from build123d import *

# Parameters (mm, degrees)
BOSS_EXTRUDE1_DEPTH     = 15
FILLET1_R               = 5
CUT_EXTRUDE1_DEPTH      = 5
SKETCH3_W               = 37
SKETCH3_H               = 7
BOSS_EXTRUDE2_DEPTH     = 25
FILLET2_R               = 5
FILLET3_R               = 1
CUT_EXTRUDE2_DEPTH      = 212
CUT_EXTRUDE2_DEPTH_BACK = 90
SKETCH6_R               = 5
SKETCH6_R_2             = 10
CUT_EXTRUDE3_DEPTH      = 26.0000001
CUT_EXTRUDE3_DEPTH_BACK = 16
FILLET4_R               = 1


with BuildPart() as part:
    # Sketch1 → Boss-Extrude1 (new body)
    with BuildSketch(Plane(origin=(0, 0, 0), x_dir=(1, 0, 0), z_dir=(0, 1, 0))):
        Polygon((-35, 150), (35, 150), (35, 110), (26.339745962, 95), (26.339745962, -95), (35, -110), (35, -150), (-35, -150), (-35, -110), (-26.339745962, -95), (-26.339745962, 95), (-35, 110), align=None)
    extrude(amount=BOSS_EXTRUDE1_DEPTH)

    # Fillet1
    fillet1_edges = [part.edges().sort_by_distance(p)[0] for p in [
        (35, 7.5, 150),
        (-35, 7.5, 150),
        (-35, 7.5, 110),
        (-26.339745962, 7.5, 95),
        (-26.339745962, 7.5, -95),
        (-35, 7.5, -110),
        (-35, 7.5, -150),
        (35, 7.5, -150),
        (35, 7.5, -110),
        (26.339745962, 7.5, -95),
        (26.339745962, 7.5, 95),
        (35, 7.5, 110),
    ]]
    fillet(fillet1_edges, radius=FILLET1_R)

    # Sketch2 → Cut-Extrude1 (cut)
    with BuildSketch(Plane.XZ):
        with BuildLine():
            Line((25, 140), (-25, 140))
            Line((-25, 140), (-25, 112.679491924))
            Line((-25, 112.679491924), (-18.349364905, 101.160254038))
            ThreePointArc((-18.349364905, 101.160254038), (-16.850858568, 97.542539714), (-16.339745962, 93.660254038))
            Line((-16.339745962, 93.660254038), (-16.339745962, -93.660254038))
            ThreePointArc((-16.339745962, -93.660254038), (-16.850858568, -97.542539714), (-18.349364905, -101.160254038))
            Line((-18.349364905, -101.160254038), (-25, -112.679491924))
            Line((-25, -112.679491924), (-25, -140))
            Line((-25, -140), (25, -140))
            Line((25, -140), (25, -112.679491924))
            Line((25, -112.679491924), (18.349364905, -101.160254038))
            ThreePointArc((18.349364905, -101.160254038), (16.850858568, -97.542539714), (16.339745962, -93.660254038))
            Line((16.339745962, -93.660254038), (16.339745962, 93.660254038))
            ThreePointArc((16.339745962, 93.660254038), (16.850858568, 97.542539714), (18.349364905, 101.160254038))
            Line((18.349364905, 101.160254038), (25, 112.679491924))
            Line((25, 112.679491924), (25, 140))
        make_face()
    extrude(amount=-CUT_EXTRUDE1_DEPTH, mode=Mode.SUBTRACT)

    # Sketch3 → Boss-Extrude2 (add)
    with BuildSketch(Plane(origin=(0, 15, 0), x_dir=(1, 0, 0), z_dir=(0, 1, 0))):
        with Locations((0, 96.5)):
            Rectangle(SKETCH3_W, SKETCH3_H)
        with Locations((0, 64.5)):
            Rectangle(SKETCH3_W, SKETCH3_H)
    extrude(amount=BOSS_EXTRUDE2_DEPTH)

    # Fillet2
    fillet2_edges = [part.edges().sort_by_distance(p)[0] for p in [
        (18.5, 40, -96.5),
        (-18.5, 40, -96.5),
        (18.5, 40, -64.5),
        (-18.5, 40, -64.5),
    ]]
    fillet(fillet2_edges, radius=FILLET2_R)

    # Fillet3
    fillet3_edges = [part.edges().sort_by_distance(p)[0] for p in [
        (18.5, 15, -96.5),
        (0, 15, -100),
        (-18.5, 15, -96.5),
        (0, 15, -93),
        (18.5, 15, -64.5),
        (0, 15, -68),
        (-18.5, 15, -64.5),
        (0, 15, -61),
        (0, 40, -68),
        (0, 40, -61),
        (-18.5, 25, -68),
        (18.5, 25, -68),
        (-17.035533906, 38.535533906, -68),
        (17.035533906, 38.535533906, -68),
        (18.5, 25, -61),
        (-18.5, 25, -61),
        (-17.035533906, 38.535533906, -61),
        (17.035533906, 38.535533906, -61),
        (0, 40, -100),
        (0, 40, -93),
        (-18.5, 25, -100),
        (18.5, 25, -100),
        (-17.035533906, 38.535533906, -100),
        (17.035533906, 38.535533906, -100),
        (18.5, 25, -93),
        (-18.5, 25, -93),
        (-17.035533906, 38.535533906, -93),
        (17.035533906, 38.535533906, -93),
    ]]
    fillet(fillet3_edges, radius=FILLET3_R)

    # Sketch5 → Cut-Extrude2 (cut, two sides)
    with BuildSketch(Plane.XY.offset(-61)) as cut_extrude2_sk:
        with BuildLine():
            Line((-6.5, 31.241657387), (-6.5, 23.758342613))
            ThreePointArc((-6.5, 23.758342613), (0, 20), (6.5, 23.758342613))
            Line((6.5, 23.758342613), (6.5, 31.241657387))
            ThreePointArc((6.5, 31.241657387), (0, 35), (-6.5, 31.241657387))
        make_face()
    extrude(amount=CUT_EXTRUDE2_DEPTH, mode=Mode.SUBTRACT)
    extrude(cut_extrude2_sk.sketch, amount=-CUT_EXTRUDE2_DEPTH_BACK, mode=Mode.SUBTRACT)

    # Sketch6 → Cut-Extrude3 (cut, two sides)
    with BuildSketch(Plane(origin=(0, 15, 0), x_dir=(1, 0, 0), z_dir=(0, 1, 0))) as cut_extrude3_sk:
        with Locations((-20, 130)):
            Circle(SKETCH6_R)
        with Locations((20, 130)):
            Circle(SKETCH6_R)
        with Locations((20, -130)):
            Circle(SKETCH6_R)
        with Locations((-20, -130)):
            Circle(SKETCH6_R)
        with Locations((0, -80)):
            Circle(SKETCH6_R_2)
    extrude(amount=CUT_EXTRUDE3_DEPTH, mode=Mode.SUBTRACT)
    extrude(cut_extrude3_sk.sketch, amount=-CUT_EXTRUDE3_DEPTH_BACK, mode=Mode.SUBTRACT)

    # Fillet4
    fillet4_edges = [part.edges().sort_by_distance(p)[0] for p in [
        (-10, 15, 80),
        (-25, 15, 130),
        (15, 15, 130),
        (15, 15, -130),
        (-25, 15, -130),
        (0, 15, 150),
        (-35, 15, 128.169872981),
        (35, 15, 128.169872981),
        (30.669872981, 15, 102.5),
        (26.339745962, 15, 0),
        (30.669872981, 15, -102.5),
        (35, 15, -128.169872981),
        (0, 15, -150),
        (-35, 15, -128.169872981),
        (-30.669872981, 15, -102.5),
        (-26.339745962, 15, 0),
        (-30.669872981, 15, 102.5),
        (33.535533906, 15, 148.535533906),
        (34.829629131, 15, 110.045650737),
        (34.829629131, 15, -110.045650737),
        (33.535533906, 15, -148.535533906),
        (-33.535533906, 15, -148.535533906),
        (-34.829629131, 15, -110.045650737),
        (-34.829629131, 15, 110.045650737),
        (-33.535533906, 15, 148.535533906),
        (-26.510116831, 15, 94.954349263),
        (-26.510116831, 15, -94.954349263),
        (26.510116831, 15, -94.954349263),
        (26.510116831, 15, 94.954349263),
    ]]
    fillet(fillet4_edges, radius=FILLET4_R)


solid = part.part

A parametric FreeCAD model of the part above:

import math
import FreeCAD as App
import Part
import Sketcher

V = App.Vector
Q = App.Units.Quantity


def edges_at(feature, points):
    """Names of the edges that pass closest to the given points."""
    edges = feature.Shape.Edges
    near = lambda p: min(range(len(edges)), key=lambda i: edges[i].distToShape(Part.Vertex(*p))[0])
    return sorted({f"Edge{near(p) + 1}" for p in points})


def add_polygon(sketch, points):
    """Adds a closed chain of lines whose ends are joined by coincident constraints."""
    first, n = sketch.GeometryCount, len(points)
    for a, b in zip(points, points[1:] + points[:1]):
        sketch.addGeometry(Part.LineSegment(App.Vector(*a, 0), App.Vector(*b, 0)), False)
    for i in range(n):
        sketch.addConstraint(Sketcher.Constraint("Coincident", first + i, 2, first + (i + 1) % n, 1))

doc = App.newDocument("Part")
body = doc.addObject("PartDesign::Body", "Body")

# Sketch on XZ plane
sketch1 = doc.addObject("Sketcher::SketchObject", "Sketch")
body.addObject(sketch1)
sketch1.AttachmentSupport = (doc.XZ_Plane, [""])
sketch1.MapMode = "FlatFace"
add_polygon(sketch1, [(35, -150), (-35, -150), (-35, -110), (-26, -95), (-26, 95), (-35, 110), (-35, 150), (35, 150), (35, 110), (26, 95), (26, -95), (35, -110)])  # lines 0-11
sketch1.addConstraint([
    Sketcher.Constraint("Horizontal", 0),
    Sketcher.Constraint("Vertical", 1),
    Sketcher.Constraint("Vertical", 3),
    Sketcher.Constraint("Vertical", 5),
    Sketcher.Constraint("Horizontal", 6),
    Sketcher.Constraint("Vertical", 7),
    Sketcher.Constraint("Vertical", 9),
    Sketcher.Constraint("Vertical", 11),
    Sketcher.Constraint("Symmetric", 0, 2, 6, 2, -1, 1),
    Sketcher.Constraint("Symmetric", 2, 2, 8, 2, -1, 1),
    Sketcher.Constraint("Symmetric", 4, 2, 10, 2, -1, 1),
    Sketcher.Constraint("Symmetric", 4, 2, 7, 2, -2),
    Sketcher.Constraint("Parallel", 2, 8),
    Sketcher.Constraint("Parallel", 4, 10),
    Sketcher.Constraint("Horizontal", 3, 2, 8, 2),
    Sketcher.Constraint("DistanceX", 0, 2, 0, 1, 70.0),
    Sketcher.Constraint("DistanceY", 1, 1, 1, 2, 40.0),
    Sketcher.Constraint("DistanceY", 3, 1, 3, 2, 190.0),
    Sketcher.Constraint("Angle", 2, Q("60 deg")),
    Sketcher.Constraint("DistanceY", 0, 2, -1, 1, 150.0),
])
pad1 = doc.addObject("PartDesign::Pad", "Pad")
body.addObject(pad1)
pad1.Profile = sketch1
pad1.Length = 15
pad1.Reversed = True
doc.recompute()

fillet = doc.addObject("PartDesign::Fillet", "Fillet")
body.addObject(fillet)
fillet.Base = (pad1, edges_at(pad1, [
    (35, 7.5, 150),
    (-35, 7.5, 150),
    (-35, 7.5, 110),
    (-26.34, 7.5, 95),
    (-26.34, 7.5, -95),
    (-35, 7.5, -110),
    (-35, 7.5, -150),
    (35, 7.5, -150),
    (35, 7.5, -110),
    (26.34, 7.5, -95),
    (26.34, 7.5, 95),
    (35, 7.5, 110),
]))
fillet.Radius = 5

# Sketch on XZ plane
sketch2 = doc.addObject("Sketcher::SketchObject", "Sketch001")
body.addObject(sketch2)
sketch2.AttachmentSupport = (doc.XZ_Plane, [""])
sketch2.MapMode = "FlatFace"
sketch2.addGeometry([
    Part.LineSegment(V(25, 140, 0), V(-25, 140, 0)),  # 0
    Part.LineSegment(V(-25, 140, 0), V(-25, 113, 0)),  # 1
    Part.LineSegment(V(-25, 113, 0), V(-18, 101, 0)),  # 2
    Part.ArcOfCircle(Part.Circle(V(-31, 94, 0), V(0, 0, 1), 15), math.radians(0), math.radians(30)),  # 3
    Part.LineSegment(V(-16, 94, 0), V(-16, -94, 0)),  # 4
    Part.ArcOfCircle(Part.Circle(V(-31, -94, 0), V(0, 0, 1), 15), math.radians(-30), math.radians(0)),  # 5
    Part.LineSegment(V(-18, -101, 0), V(-25, -113, 0)),  # 6
    Part.LineSegment(V(-25, -113, 0), V(-25, -140, 0)),  # 7
    Part.LineSegment(V(-25, -140, 0), V(25, -140, 0)),  # 8
    Part.LineSegment(V(25, -140, 0), V(25, -113, 0)),  # 9
    Part.LineSegment(V(25, -113, 0), V(18, -101, 0)),  # 10
    Part.ArcOfCircle(Part.Circle(V(31, -94, 0), V(0, 0, 1), 15), math.radians(-180), math.radians(-150)),  # 11
    Part.LineSegment(V(16, -94, 0), V(16, 94, 0)),  # 12
    Part.ArcOfCircle(Part.Circle(V(31, 94, 0), V(0, 0, 1), 15), math.radians(150), math.radians(180)),  # 13
    Part.LineSegment(V(18, 101, 0), V(25, 113, 0)),  # 14
    Part.LineSegment(V(25, 113, 0), V(25, 140, 0)),  # 15
], False)
sketch2.addConstraint([
    Sketcher.Constraint("Coincident", 0, 2, 1, 1),
    Sketcher.Constraint("Coincident", 1, 2, 2, 1),
    Sketcher.Constraint("Tangent", 2, 2, 3, 2),
    Sketcher.Constraint("Tangent", 3, 1, 4, 1),
    Sketcher.Constraint("Tangent", 4, 2, 5, 2),
    Sketcher.Constraint("Tangent", 5, 1, 6, 1),
    Sketcher.Constraint("Coincident", 6, 2, 7, 1),
    Sketcher.Constraint("Coincident", 7, 2, 8, 1),
    Sketcher.Constraint("Coincident", 8, 2, 9, 1),
    Sketcher.Constraint("Coincident", 9, 2, 10, 1),
    Sketcher.Constraint("Tangent", 10, 2, 11, 2),
    Sketcher.Constraint("Tangent", 11, 1, 12, 1),
    Sketcher.Constraint("Tangent", 12, 2, 13, 2),
    Sketcher.Constraint("Tangent", 13, 1, 14, 1),
    Sketcher.Constraint("Coincident", 14, 2, 15, 1),
    Sketcher.Constraint("Coincident", 15, 2, 0, 1),
    Sketcher.Constraint("Horizontal", 0),
    Sketcher.Constraint("Vertical", 1),
    Sketcher.Constraint("Vertical", 4),
    Sketcher.Constraint("Vertical", 7),
    Sketcher.Constraint("Horizontal", 8),
    Sketcher.Constraint("Vertical", 9),
    Sketcher.Constraint("Vertical", 12),
    Sketcher.Constraint("Vertical", 15),
    Sketcher.Constraint("Equal", 3, 5),
    Sketcher.Constraint("Equal", 5, 11),
    Sketcher.Constraint("Equal", 11, 13),
    Sketcher.Constraint("Symmetric", 3, 3, 11, 3, -1, 1),
    Sketcher.Constraint("Symmetric", 0, 2, 8, 2, -1, 1),
    Sketcher.Constraint("Symmetric", 5, 1, 13, 1, -1, 1),
    Sketcher.Constraint("Symmetric", 6, 2, 9, 2, -2),
    Sketcher.Constraint("Symmetric", 2, 2, 13, 1, -2),
    Sketcher.Constraint("Horizontal", 1, 2, 14, 2),
    Sketcher.Constraint("Radius", 3, 15.0),
    Sketcher.Constraint("DistanceX", 0, 2, 0, 1, 50.0),
    Sketcher.Constraint("Angle", 2, Q("-60 deg")),
    Sketcher.Constraint("DistanceY", -1, 1, 0, 2, 140.0),
    Sketcher.Constraint("DistanceY", 1, 2, 1, 1, 27.320508),
    Sketcher.Constraint("DistanceY", 4, 2, 4, 1, 187.320508),
])
pocket1 = doc.addObject("PartDesign::Pocket", "Pocket")
body.addObject(pocket1)
pocket1.Profile = sketch2
pocket1.Length = 5

# Sketch on XZ plane
sketch3 = doc.addObject("Sketcher::SketchObject", "Sketch002")
body.addObject(sketch3)
sketch3.AttachmentSupport = (doc.XZ_Plane, [""])
sketch3.MapMode = "FlatFace"
sketch3.AttachmentOffset = App.Placement(V(0, 0, -15), App.Rotation())
add_polygon(sketch3, [(-18, -100), (-18, -93), (18, -93), (18, -100)])  # lines 0-3
add_polygon(sketch3, [(-18, -68), (-18, -61), (18, -61), (18, -68)])  # lines 4-7
sketch3.addConstraint([
    Sketcher.Constraint("Vertical", 0),
    Sketcher.Constraint("Horizontal", 1),
    Sketcher.Constraint("Vertical", 2),
    Sketcher.Constraint("Horizontal", 3),
    Sketcher.Constraint("Vertical", 4),
    Sketcher.Constraint("Horizontal", 5),
    Sketcher.Constraint("Vertical", 6),
    Sketcher.Constraint("Horizontal", 7),
    Sketcher.Constraint("Vertical", 3, 2, 4, 2),
    Sketcher.Constraint("Vertical", 2, 2, 5, 2),
    Sketcher.Constraint("Equal", 2, 4),
    Sketcher.Constraint("DistanceX", 1, 1, 1, 2, 37.0),
    Sketcher.Constraint("DistanceY", 0, 1, 0, 2, 7.0),
    Sketcher.Constraint("DistanceY", 0, 2, -1, 1, 93.0),
    Sketcher.Constraint("DistanceY", 4, 2, -1, 1, 61.0),
    Sketcher.Constraint("DistanceX", 0, 2, -1, 1, 18.5),
])
pad2 = doc.addObject("PartDesign::Pad", "Pad001")
body.addObject(pad2)
pad2.Profile = sketch3
pad2.Length = 25
pad2.Reversed = True
doc.recompute()

fillet2 = doc.addObject("PartDesign::Fillet", "Fillet001")
body.addObject(fillet2)
fillet2.Base = (pad2, edges_at(pad2, [
    (18.5, 40, -96.5),
    (-18.5, 40, -96.5),
    (18.5, 40, -64.5),
    (-18.5, 40, -64.5),
]))
fillet2.Radius = 5
doc.recompute()

fillet3 = doc.addObject("PartDesign::Fillet", "Fillet002")
body.addObject(fillet3)
fillet3.Base = (fillet2, edges_at(fillet2, [
    (18.5, 15, -96.5),
    (0, 15, -100),
    (-18.5, 15, -96.5),
    (0, 15, -93),
    (18.5, 15, -64.5),
    (0, 15, -68),
    (-18.5, 15, -64.5),
    (0, 15, -61),
    (0, 40, -68),
    (0, 40, -61),
    (-18.5, 25, -68),
    (18.5, 25, -68),
    (-17.036, 38.536, -68),
    (17.036, 38.536, -68),
    (18.5, 25, -61),
    (-18.5, 25, -61),
    (-17.036, 38.536, -61),
    (17.036, 38.536, -61),
    (0, 40, -100),
    (0, 40, -93),
    (-18.5, 25, -100),
    (18.5, 25, -100),
    (-17.036, 38.536, -100),
    (17.036, 38.536, -100),
    (18.5, 25, -93),
    (-18.5, 25, -93),
    (-17.036, 38.536, -93),
    (17.036, 38.536, -93),
]))
fillet3.Radius = 1

# Sketch on XY plane
sketch4 = doc.addObject("Sketcher::SketchObject", "Sketch003")
body.addObject(sketch4)
sketch4.AttachmentSupport = (doc.XY_Plane, [""])
sketch4.MapMode = "FlatFace"
sketch4.AttachmentOffset = App.Placement(V(0, 0, -61), App.Rotation())
sketch4.addGeometry([
    Part.LineSegment(V(-6, 31, 0), V(-6, 24, 0)),
    Part.ArcOfCircle(Part.Circle(V(0, 28, 0), V(0, 0, 1), 8), math.radians(-150), math.radians(-30)),
    Part.LineSegment(V(6, 24, 0), V(6, 31, 0)),
    Part.ArcOfCircle(Part.Circle(V(0, 28, 0), V(0, 0, 1), 8), math.radians(30), math.radians(150)),
], False)
sketch4.addConstraint([
    Sketcher.Constraint("Coincident", 0, 2, 1, 1),
    Sketcher.Constraint("Coincident", 1, 2, 2, 1),
    Sketcher.Constraint("Coincident", 2, 2, 3, 1),
    Sketcher.Constraint("Coincident", 3, 2, 0, 1),
    Sketcher.Constraint("Vertical", 0),
    Sketcher.Constraint("Vertical", 2),
    Sketcher.Constraint("Coincident", 3, 3, 1, 3),
    Sketcher.Constraint("Equal", 1, 3),
    Sketcher.Constraint("Symmetric", 0, 2, 1, 2, -2),
    Sketcher.Constraint("Radius", 1, 7.5),
    Sketcher.Constraint("DistanceX", 0, 2, 1, 2, 13.0),
    Sketcher.Constraint("DistanceY", -1, 1, 1, 3, 27.5),
])
pocket2 = doc.addObject("PartDesign::Pocket", "Pocket001")
body.addObject(pocket2)
pocket2.Profile = sketch4
pocket2.Type = "ThroughAll"
pocket2.Midplane = True

# Sketch on XZ plane
sketch5 = doc.addObject("Sketcher::SketchObject", "Sketch004")
body.addObject(sketch5)
sketch5.AttachmentSupport = (doc.XZ_Plane, [""])
sketch5.MapMode = "FlatFace"
sketch5.AttachmentOffset = App.Placement(V(0, 0, -15), App.Rotation())
sketch5.addGeometry([
    Part.Circle(V(-20, -130, 0), V(0, 0, 1), 5),  # 0
    Part.Circle(V(20, -130, 0), V(0, 0, 1), 5),  # 1
    Part.Circle(V(20, 130, 0), V(0, 0, 1), 5),  # 2
    Part.Circle(V(-20, 130, 0), V(0, 0, 1), 5),  # 3
    Part.Circle(V(0, 80, 0), V(0, 0, 1), 10),  # 4
], False)
sketch5.addConstraint([
    Sketcher.Constraint("Equal", 0, 1),
    Sketcher.Constraint("Equal", 1, 2),
    Sketcher.Constraint("Equal", 2, 3),
    Sketcher.Constraint("Symmetric", 0, 3, 2, 3, -1, 1),
    Sketcher.Constraint("Symmetric", 1, 3, 3, 3, -1, 1),
    Sketcher.Constraint("Symmetric", 0, 3, 1, 3, -2),
    Sketcher.Constraint("PointOnObject", 4, 3, -2),
    Sketcher.Constraint("Diameter", 0, 10.0),
    Sketcher.Constraint("Diameter", 4, 20.0),
    Sketcher.Constraint("DistanceX", 0, 3, -1, 1, 20.0),
    Sketcher.Constraint("DistanceY", 0, 3, -1, 1, 130.0),
    Sketcher.Constraint("DistanceY", -1, 1, 4, 3, 80.0),
])
pocket3 = doc.addObject("PartDesign::Pocket", "Pocket002")
body.addObject(pocket3)
pocket3.Profile = sketch5
pocket3.Type = "ThroughAll"
pocket3.Midplane = True
doc.recompute()

fillet4 = doc.addObject("PartDesign::Fillet", "Fillet003")
body.addObject(fillet4)
fillet4.Base = (pocket3, edges_at(pocket3, [
    (-10, 15, 80),
    (-25, 15, 130),
    (15, 15, 130),
    (15, 15, -130),
    (-25, 15, -130),
    (0, 15, 150),
    (-35, 15, 128.17),
    (35, 15, 128.17),
    (30.67, 15, 102.5),
    (26.34, 15, 0),
    (30.67, 15, -102.5),
    (35, 15, -128.17),
    (0, 15, -150),
    (-35, 15, -128.17),
    (-30.67, 15, -102.5),
    (-26.34, 15, 0),
    (-30.67, 15, 102.5),
    (33.536, 15, 148.536),
    (34.83, 15, 110.046),
    (34.83, 15, -110.046),
    (33.536, 15, -148.536),
    (-33.536, 15, -148.536),
    (-34.83, 15, -110.046),
    (-34.83, 15, 110.046),
    (-33.536, 15, 148.536),
    (-26.51, 15, 94.954),
    (-26.51, 15, -94.954),
    (26.51, 15, -94.954),
    (26.51, 15, 94.954),
]))
fillet4.Radius = 1

doc.recompute()
